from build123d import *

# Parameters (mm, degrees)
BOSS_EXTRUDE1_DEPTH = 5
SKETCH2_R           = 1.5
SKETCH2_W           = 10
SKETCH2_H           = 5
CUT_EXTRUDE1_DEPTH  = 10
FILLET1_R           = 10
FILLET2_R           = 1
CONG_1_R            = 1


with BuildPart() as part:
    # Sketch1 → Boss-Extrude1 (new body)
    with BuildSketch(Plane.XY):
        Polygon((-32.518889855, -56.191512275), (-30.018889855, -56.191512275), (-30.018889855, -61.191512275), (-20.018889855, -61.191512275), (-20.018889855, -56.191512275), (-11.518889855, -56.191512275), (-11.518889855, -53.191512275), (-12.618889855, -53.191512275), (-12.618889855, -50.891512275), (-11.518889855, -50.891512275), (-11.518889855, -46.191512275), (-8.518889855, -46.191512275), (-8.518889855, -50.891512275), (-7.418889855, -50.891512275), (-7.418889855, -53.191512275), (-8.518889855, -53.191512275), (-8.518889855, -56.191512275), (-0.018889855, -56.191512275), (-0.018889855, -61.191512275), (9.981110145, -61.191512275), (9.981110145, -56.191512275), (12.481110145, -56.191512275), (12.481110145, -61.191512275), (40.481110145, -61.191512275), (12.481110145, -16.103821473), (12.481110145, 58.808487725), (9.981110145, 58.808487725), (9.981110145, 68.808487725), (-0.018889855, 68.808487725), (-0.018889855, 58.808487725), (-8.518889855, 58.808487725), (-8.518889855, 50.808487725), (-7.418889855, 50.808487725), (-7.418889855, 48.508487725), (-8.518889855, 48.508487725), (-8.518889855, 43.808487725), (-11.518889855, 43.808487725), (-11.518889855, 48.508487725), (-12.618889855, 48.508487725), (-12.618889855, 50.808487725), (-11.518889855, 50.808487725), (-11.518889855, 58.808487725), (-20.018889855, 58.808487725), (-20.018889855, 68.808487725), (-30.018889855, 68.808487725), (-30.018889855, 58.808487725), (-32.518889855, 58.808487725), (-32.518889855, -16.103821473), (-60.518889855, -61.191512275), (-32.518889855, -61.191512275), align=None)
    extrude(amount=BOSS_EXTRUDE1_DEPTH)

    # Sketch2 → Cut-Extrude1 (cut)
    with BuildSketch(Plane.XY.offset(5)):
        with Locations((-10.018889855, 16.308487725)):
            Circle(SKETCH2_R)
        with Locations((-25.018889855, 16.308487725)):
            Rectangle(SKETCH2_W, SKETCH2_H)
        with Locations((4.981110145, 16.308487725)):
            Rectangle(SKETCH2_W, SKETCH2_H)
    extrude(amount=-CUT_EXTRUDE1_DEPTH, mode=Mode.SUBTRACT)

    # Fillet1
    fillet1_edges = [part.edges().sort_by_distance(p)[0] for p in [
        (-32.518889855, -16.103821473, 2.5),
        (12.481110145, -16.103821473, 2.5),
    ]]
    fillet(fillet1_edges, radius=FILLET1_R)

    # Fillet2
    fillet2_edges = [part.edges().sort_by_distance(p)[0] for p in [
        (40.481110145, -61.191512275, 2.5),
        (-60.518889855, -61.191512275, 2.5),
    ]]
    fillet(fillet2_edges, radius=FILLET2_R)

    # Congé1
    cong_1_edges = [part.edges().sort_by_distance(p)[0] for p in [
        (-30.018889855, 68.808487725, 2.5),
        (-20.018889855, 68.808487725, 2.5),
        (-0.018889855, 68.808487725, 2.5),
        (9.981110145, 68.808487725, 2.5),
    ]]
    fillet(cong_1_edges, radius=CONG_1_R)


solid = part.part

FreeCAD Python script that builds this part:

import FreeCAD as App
import Part
import Sketcher
Q = App.Units.Quantity


def edges_at(feature, points):
    """Names of the edges that pass closest to the given points."""
    edges = feature.Shape.Edges
    near = lambda p: min(range(len(edges)), key=lambda i: edges[i].distToShape(Part.Vertex(*p))[0])
    return sorted({f"Edge{near(p) + 1}" for p in points})

doc = App.newDocument("Part")
body = doc.addObject("PartDesign::Body", "Body")

sketch1 = body.newObject("Sketcher::SketchObject", "Sketch")
sketch1.AttachmentSupport = (doc.getObject("XY_Plane"), [""])
sketch1.MapMode = "FlatFace"
sketch1.addGeometry(Part.LineSegment(App.Vector(-32.51889, -56.191512, 0), App.Vector(-30.01889, -56.191512, 0)), False)
sketch1.addGeometry(Part.LineSegment(App.Vector(-30.01889, -56.191512, 0), App.Vector(-30.01889, -61.191512, 0)), False)
sketch1.addGeometry(Part.LineSegment(App.Vector(-30.01889, -61.191512, 0), App.Vector(-20.01889, -61.191512, 0)), False)
sketch1.addGeometry(Part.LineSegment(App.Vector(-20.01889, -61.191512, 0), App.Vector(-20.01889, -56.191512, 0)), False)
sketch1.addGeometry(Part.LineSegment(App.Vector(-20.01889, -56.191512, 0), App.Vector(-11.51889, -56.191512, 0)), False)
sketch1.addGeometry(Part.LineSegment(App.Vector(-11.51889, -56.191512, 0), App.Vector(-11.51889, -53.191512, 0)), False)
sketch1.addGeometry(Part.LineSegment(App.Vector(-11.51889, -53.191512, 0), App.Vector(-12.61889, -53.191512, 0)), False)
sketch1.addGeometry(Part.LineSegment(App.Vector(-12.61889, -53.191512, 0), App.Vector(-12.61889, -50.891512, 0)), False)
sketch1.addGeometry(Part.LineSegment(App.Vector(-12.61889, -50.891512, 0), App.Vector(-11.51889, -50.891512, 0)), False)
sketch1.addGeometry(Part.LineSegment(App.Vector(-11.51889, -50.891512, 0), App.Vector(-11.51889, -46.191512, 0)), False)
sketch1.addGeometry(Part.LineSegment(App.Vector(-11.51889, -46.191512, 0), App.Vector(-8.51889, -46.191512, 0)), False)
sketch1.addGeometry(Part.LineSegment(App.Vector(-8.51889, -46.191512, 0), App.Vector(-8.51889, -50.891512, 0)), False)
sketch1.addGeometry(Part.LineSegment(App.Vector(-8.51889, -50.891512, 0), App.Vector(-7.41889, -50.891512, 0)), False)
sketch1.addGeometry(Part.LineSegment(App.Vector(-7.41889, -50.891512, 0), App.Vector(-7.41889, -53.191512, 0)), False)
sketch1.addGeometry(Part.LineSegment(App.Vector(-7.41889, -53.191512, 0), App.Vector(-8.51889, -53.191512, 0)), False)
sketch1.addGeometry(Part.LineSegment(App.Vector(-8.51889, -53.191512, 0), App.Vector(-8.51889, -56.191512, 0)), False)
sketch1.addGeometry(Part.LineSegment(App.Vector(-8.51889, -56.191512, 0), App.Vector(-0.01889, -56.191512, 0)), False)
sketch1.addGeometry(Part.LineSegment(App.Vector(-0.01889, -56.191512, 0), App.Vector(-0.01889, -61.191512, 0)), False)
sketch1.addGeometry(Part.LineSegment(App.Vector(-0.01889, -61.191512, 0), App.Vector(9.98111, -61.191512, 0)), False)
sketch1.addGeometry(Part.LineSegment(App.Vector(9.98111, -61.191512, 0), App.Vector(9.98111, -56.191512, 0)), False)
sketch1.addGeometry(Part.LineSegment(App.Vector(9.98111, -56.191512, 0), App.Vector(12.48111, -56.191512, 0)), False)
sketch1.addGeometry(Part.LineSegment(App.Vector(12.48111, -56.191512, 0), App.Vector(12.48111, -61.191512, 0)), False)
sketch1.addGeometry(Part.LineSegment(App.Vector(12.48111, -61.191512, 0), App.Vector(40.48111, -61.191512, 0)), False)
sketch1.addGeometry(Part.LineSegment(App.Vector(40.48111, -61.191512, 0), App.Vector(12.48111, -16.103821, 0)), False)
sketch1.addGeometry(Part.LineSegment(App.Vector(12.48111, -16.103821, 0), App.Vector(12.48111, 58.808488, 0)), False)
sketch1.addGeometry(Part.LineSegment(App.Vector(12.48111, 58.808488, 0), App.Vector(9.98111, 58.808488, 0)), False)
sketch1.addGeometry(Part.LineSegment(App.Vector(9.98111, 58.808488, 0), App.Vector(9.98111, 68.808488, 0)), False)
sketch1.addGeometry(Part.LineSegment(App.Vector(9.98111, 68.808488, 0), App.Vector(-0.01889, 68.808488, 0)), False)
sketch1.addGeometry(Part.LineSegment(App.Vector(-0.01889, 68.808488, 0), App.Vector(-0.01889, 58.808488, 0)), False)
sketch1.addGeometry(Part.LineSegment(App.Vector(-0.01889, 58.808488, 0), App.Vector(-8.51889, 58.808488, 0)), False)
sketch1.addGeometry(Part.LineSegment(App.Vector(-8.51889, 58.808488, 0), App.Vector(-8.51889, 50.808488, 0)), False)
sketch1.addGeometry(Part.LineSegment(App.Vector(-8.51889, 50.808488, 0), App.Vector(-7.41889, 50.808488, 0)), False)
sketch1.addGeometry(Part.LineSegment(App.Vector(-7.41889, 50.808488, 0), App.Vector(-7.41889, 48.508488, 0)), False)
sketch1.addGeometry(Part.LineSegment(App.Vector(-7.41889, 48.508488, 0), App.Vector(-8.51889, 48.508488, 0)), False)
sketch1.addGeometry(Part.LineSegment(App.Vector(-8.51889, 48.508488, 0), App.Vector(-8.51889, 43.808488, 0)), False)
sketch1.addGeometry(Part.LineSegment(App.Vector(-8.51889, 43.808488, 0), App.Vector(-11.51889, 43.808488, 0)), False)
sketch1.addGeometry(Part.LineSegment(App.Vector(-11.51889, 43.808488, 0), App.Vector(-11.51889, 48.508488, 0)), False)
sketch1.addGeometry(Part.LineSegment(App.Vector(-11.51889, 48.508488, 0), App.Vector(-12.61889, 48.508488, 0)), False)
sketch1.addGeometry(Part.LineSegment(App.Vector(-12.61889, 48.508488, 0), App.Vector(-12.61889, 50.808488, 0)), False)
sketch1.addGeometry(Part.LineSegment(App.Vector(-12.61889, 50.808488, 0), App.Vector(-11.51889, 50.808488, 0)), False)
sketch1.addGeometry(Part.LineSegment(App.Vector(-11.51889, 50.808488, 0), App.Vector(-11.51889, 58.808488, 0)), False)
sketch1.addGeometry(Part.LineSegment(App.Vector(-11.51889, 58.808488, 0), App.Vector(-20.01889, 58.808488, 0)), False)
sketch1.addGeometry(Part.LineSegment(App.Vector(-20.01889, 58.808488, 0), App.Vector(-20.01889, 68.808488, 0)), False)
sketch1.addGeometry(Part.LineSegment(App.Vector(-20.01889, 68.808488, 0), App.Vector(-30.01889, 68.808488, 0)), False)
sketch1.addGeometry(Part.LineSegment(App.Vector(-30.01889, 68.808488, 0), App.Vector(-30.01889, 58.808488, 0)), False)
sketch1.addGeometry(Part.LineSegment(App.Vector(-30.01889, 58.808488, 0), App.Vector(-32.51889, 58.808488, 0)), False)
sketch1.addGeometry(Part.LineSegment(App.Vector(-32.51889, 58.808488, 0), App.Vector(-32.51889, -16.103821, 0)), False)
sketch1.addGeometry(Part.LineSegment(App.Vector(-32.51889, -16.103821, 0), App.Vector(-60.51889, -61.191512, 0)), False)
sketch1.addGeometry(Part.LineSegment(App.Vector(-60.51889, -61.191512, 0), App.Vector(-32.51889, -61.191512, 0)), False)
sketch1.addGeometry(Part.LineSegment(App.Vector(-32.51889, -61.191512, 0), App.Vector(-32.51889, -56.191512, 0)), False)
sketch1.addConstraint(Sketcher.Constraint("Coincident", 0, 2, 1, 1))
sketch1.addConstraint(Sketcher.Constraint("Coincident", 1, 2, 2, 1))
sketch1.addConstraint(Sketcher.Constraint("Coincident", 2, 2, 3, 1))
sketch1.addConstraint(Sketcher.Constraint("Coincident", 3, 2, 4, 1))
sketch1.addConstraint(Sketcher.Constraint("Coincident", 4, 2, 5, 1))
sketch1.addConstraint(Sketcher.Constraint("Coincident", 5, 2, 6, 1))
sketch1.addConstraint(Sketcher.Constraint("Coincident", 6, 2, 7, 1))
sketch1.addConstraint(Sketcher.Constraint("Coincident", 7, 2, 8, 1))
sketch1.addConstraint(Sketcher.Constraint("Coincident", 8, 2, 9, 1))
sketch1.addConstraint(Sketcher.Constraint("Coincident", 9, 2, 10, 1))
sketch1.addConstraint(Sketcher.Constraint("Coincident", 10, 2, 11, 1))
sketch1.addConstraint(Sketcher.Constraint("Coincident", 11, 2, 12, 1))
sketch1.addConstraint(Sketcher.Constraint("Coincident", 12, 2, 13, 1))
sketch1.addConstraint(Sketcher.Constraint("Coincident", 13, 2, 14, 1))
sketch1.addConstraint(Sketcher.Constraint("Coincident", 14, 2, 15, 1))
sketch1.addConstraint(Sketcher.Constraint("Coincident", 15, 2, 16, 1))
sketch1.addConstraint(Sketcher.Constraint("Coincident", 16, 2, 17, 1))
sketch1.addConstraint(Sketcher.Constraint("Coincident", 17, 2, 18, 1))
sketch1.addConstraint(Sketcher.Constraint("Coincident", 18, 2, 19, 1))
sketch1.addConstraint(Sketcher.Constraint("Coincident", 19, 2, 20, 1))
sketch1.addConstraint(Sketcher.Constraint("Coincident", 20, 2, 21, 1))
sketch1.addConstraint(Sketcher.Constraint("Coincident", 21, 2, 22, 1))
sketch1.addConstraint(Sketcher.Constraint("Coincident", 22, 2, 23, 1))
sketch1.addConstraint(Sketcher.Constraint("Coincident", 23, 2, 24, 1))
sketch1.addConstraint(Sketcher.Constraint("Coincident", 24, 2, 25, 1))
sketch1.addConstraint(Sketcher.Constraint("Coincident", 25, 2, 26, 1))
sketch1.addConstraint(Sketcher.Constraint("Coincident", 26, 2, 27, 1))
sketch1.addConstraint(Sketcher.Constraint("Coincident", 27, 2, 28, 1))
sketch1.addConstraint(Sketcher.Constraint("Coincident", 28, 2, 29, 1))
sketch1.addConstraint(Sketcher.Constraint("Coincident", 29, 2, 30, 1))
sketch1.addConstraint(Sketcher.Constraint("Coincident", 30, 2, 31, 1))
sketch1.addConstraint(Sketcher.Constraint("Coincident", 31, 2, 32, 1))
sketch1.addConstraint(Sketcher.Constraint("Coincident", 32, 2, 33, 1))
sketch1.addConstraint(Sketcher.Constraint("Coincident", 33, 2, 34, 1))
sketch1.addConstraint(Sketcher.Constraint("Coincident", 34, 2, 35, 1))
sketch1.addConstraint(Sketcher.Constraint("Coincident", 35, 2, 36, 1))
sketch1.addConstraint(Sketcher.Constraint("Coincident", 36, 2, 37, 1))
sketch1.addConstraint(Sketcher.Constraint("Coincident", 37, 2, 38, 1))
sketch1.addConstraint(Sketcher.Constraint("Coincident", 38, 2, 39, 1))
sketch1.addConstraint(Sketcher.Constraint("Coincident", 39, 2, 40, 1))
sketch1.addConstraint(Sketcher.Constraint("Coincident", 40, 2, 41, 1))
sketch1.addConstraint(Sketcher.Constraint("Coincident", 41, 2, 42, 1))
sketch1.addConstraint(Sketcher.Constraint("Coincident", 42, 2, 43, 1))
sketch1.addConstraint(Sketcher.Constraint("Coincident", 43, 2, 44, 1))
sketch1.addConstraint(Sketcher.Constraint("Coincident", 44, 2, 45, 1))
sketch1.addConstraint(Sketcher.Constraint("Coincident", 45, 2, 46, 1))
sketch1.addConstraint(Sketcher.Constraint("Coincident", 46, 2, 47, 1))
sketch1.addConstraint(Sketcher.Constraint("Coincident", 47, 2, 48, 1))
sketch1.addConstraint(Sketcher.Constraint("Coincident", 48, 2, 49, 1))
sketch1.addConstraint(Sketcher.Constraint("Coincident", 49, 2, 0, 1))
sketch1.addConstraint(Sketcher.Constraint("Horizontal", 0))
sketch1.addConstraint(Sketcher.Constraint("Vertical", 1))
sketch1.addConstraint(Sketcher.Constraint("Horizontal", 2))
sketch1.addConstraint(Sketcher.Constraint("Vertical", 3))
sketch1.addConstraint(Sketcher.Constraint("Horizontal", 4))
sketch1.addConstraint(Sketcher.Constraint("Vertical", 5))
sketch1.addConstraint(Sketcher.Constraint("Horizontal", 6))
sketch1.addConstraint(Sketcher.Constraint("Vertical", 7))
sketch1.addConstraint(Sketcher.Constraint("Horizontal", 8))
sketch1.addConstraint(Sketcher.Constraint("Vertical", 9))
sketch1.addConstraint(Sketcher.Constraint("Horizontal", 10))
sketch1.addConstraint(Sketcher.Constraint("Vertical", 11))
sketch1.addConstraint(Sketcher.Constraint("Horizontal", 12))
sketch1.addConstraint(Sketcher.Constraint("Vertical", 13))
sketch1.addConstraint(Sketcher.Constraint("Horizontal", 14))
sketch1.addConstraint(Sketcher.Constraint("Vertical", 15))
sketch1.addConstraint(Sketcher.Constraint("Horizontal", 16))
sketch1.addConstraint(Sketcher.Constraint("Vertical", 17))
sketch1.addConstraint(Sketcher.Constraint("Horizontal", 18))
sketch1.addConstraint(Sketcher.Constraint("Vertical", 19))
sketch1.addConstraint(Sketcher.Constraint("Horizontal", 20))
sketch1.addConstraint(Sketcher.Constraint("Vertical", 21))
sketch1.addConstraint(Sketcher.Constraint("Horizontal", 22))
sketch1.addConstraint(Sketcher.Constraint("Vertical", 24))
sketch1.addConstraint(Sketcher.Constraint("Horizontal", 25))
sketch1.addConstraint(Sketcher.Constraint("Vertical", 26))
sketch1.addConstraint(Sketcher.Constraint("Horizontal", 27))
sketch1.addConstraint(Sketcher.Constraint("Vertical", 28))
sketch1.addConstraint(Sketcher.Constraint("Horizontal", 29))
sketch1.addConstraint(Sketcher.Constraint("Vertical", 30))
sketch1.addConstraint(Sketcher.Constraint("Horizontal", 31))
sketch1.addConstraint(Sketcher.Constraint("Vertical", 32))
sketch1.addConstraint(Sketcher.Constraint("Horizontal", 33))
sketch1.addConstraint(Sketcher.Constraint("Vertical", 34))
sketch1.addConstraint(Sketcher.Constraint("Horizontal", 35))
sketch1.addConstraint(Sketcher.Constraint("Vertical", 36))
sketch1.addConstraint(Sketcher.Constraint("Horizontal", 37))
sketch1.addConstraint(Sketcher.Constraint("Vertical", 38))
sketch1.addConstraint(Sketcher.Constraint("Horizontal", 39))
sketch1.addConstraint(Sketcher.Constraint("Vertical", 40))
sketch1.addConstraint(Sketcher.Constraint("Horizontal", 41))
sketch1.addConstraint(Sketcher.Constraint("Vertical", 42))
sketch1.addConstraint(Sketcher.Constraint("Horizontal", 43))
sketch1.addConstraint(Sketcher.Constraint("Vertical", 44))
sketch1.addConstraint(Sketcher.Constraint("Horizontal", 45))
sketch1.addConstraint(Sketcher.Constraint("Vertical", 46))
sketch1.addConstraint(Sketcher.Constraint("Horizontal", 48))
sketch1.addConstraint(Sketcher.Constraint("Vertical", 49))
sketch1.addConstraint(Sketcher.Constraint("Horizontal", 0, 2, 3, 2))
sketch1.addConstraint(Sketcher.Constraint("Horizontal", 8, 2, 11, 2))
sketch1.addConstraint(Sketcher.Constraint("Horizontal", 6, 2, 13, 2))
sketch1.addConstraint(Sketcher.Constraint("Horizontal", 4, 2, 15, 2))
sketch1.addConstraint(Sketcher.Constraint("Horizontal", 2, 2, 17, 2))
sketch1.addConstraint(Sketcher.Constraint("Horizontal", 16, 2, 19, 2))
sketch1.addConstraint(Sketcher.Constraint("Horizontal", 18, 2, 21, 2))
sketch1.addConstraint(Sketcher.Constraint("Horizontal", 25, 2, 28, 2))
sketch1.addConstraint(Sketcher.Constraint("Horizontal", 33, 2, 36, 2))
sketch1.addConstraint(Sketcher.Constraint("Horizontal", 31, 2, 38, 2))
sketch1.addConstraint(Sketcher.Constraint("Horizontal", 29, 2, 40, 2))
sketch1.addConstraint(Sketcher.Constraint("Horizontal", 27, 2, 42, 2))
sketch1.addConstraint(Sketcher.Constraint("Horizontal", 41, 2, 44, 2))
sketch1.addConstraint(Sketcher.Constraint("Horizontal", 23, 2, 46, 2))
sketch1.addConstraint(Sketcher.Constraint("Horizontal", 22, 2, 47, 2))
sketch1.addConstraint(Sketcher.Constraint("Vertical", 5, 2, 8, 2))
sketch1.addConstraint(Sketcher.Constraint("Vertical", 11, 2, 14, 2))
sketch1.addConstraint(Sketcher.Constraint("Vertical", 21, 2, 23, 2))
sketch1.addConstraint(Sketcher.Constraint("Vertical", 19, 2, 25, 2))
sketch1.addConstraint(Sketcher.Constraint("Vertical", 17, 2, 27, 2))
sketch1.addConstraint(Sketcher.Constraint("Vertical", 15, 2, 29, 2))
sketch1.addConstraint(Sketcher.Constraint("Vertical", 13, 2, 31, 2))
sketch1.addConstraint(Sketcher.Constraint("Vertical", 30, 2, 33, 2))
sketch1.addConstraint(Sketcher.Constraint("Vertical", 9, 2, 35, 2))
sketch1.addConstraint(Sketcher.Constraint("Vertical", 7, 2, 37, 2))
sketch1.addConstraint(Sketcher.Constraint("Vertical", 36, 2, 39, 2))
sketch1.addConstraint(Sketcher.Constraint("Vertical", 3, 2, 41, 2))
sketch1.addConstraint(Sketcher.Constraint("Vertical", 1, 2, 43, 2))
sketch1.addConstraint(Sketcher.Constraint("Vertical", 46, 2, 48, 2))
sketch1.addConstraint(Sketcher.Constraint("Equal", 8, 12))
sketch1.addConstraint(Sketcher.Constraint("Equal", 4, 16))
sketch1.addConstraint(Sketcher.Constraint("Equal", 2, 18))
sketch1.addConstraint(Sketcher.Constraint("Equal", 0, 20))
sketch1.addConstraint(Sketcher.Constraint("Equal", 22, 48))
sketch1.addConstraint(Sketcher.Constraint("Equal", 35, 5))
sketch1.addConstraint(Sketcher.Constraint("Equal", 43, 26))
sketch1.addConstraint(Sketcher.Constraint("Equal", 13, 32))
sketch1.addConstraint(Sketcher.Constraint("Equal", 11, 34))
sketch1.addConstraint(Sketcher.Constraint("DistanceX", 2, 1, 2, 2, Q("10 mm")))
sketch1.addConstraint(Sketcher.Constraint("DistanceX", 10, 1, 10, 2, Q("3 mm")))
sketch1.addConstraint(Sketcher.Constraint("DistanceX", 22, 1, 22, 2, Q("28 mm")))
sketch1.addConstraint(Sketcher.Constraint("DistanceY", 1, 2, 1, 1, Q("5 mm")))
sketch1.addConstraint(Sketcher.Constraint("DistanceY", 30, 2, 30, 1, Q("8 mm")))
sketch1.addConstraint(Sketcher.Constraint("DistanceX", 0, 1, 0, 2, Q("2.5 mm")))
sketch1.addConstraint(Sketcher.Constraint("DistanceX", 4, 1, 4, 2, Q("8.5 mm")))
sketch1.addConstraint(Sketcher.Constraint("DistanceX", 6, 2, 6, 1, Q("1.1 mm")))
sketch1.addConstraint(Sketcher.Constraint("DistanceY", 7, 1, 7, 2, Q("2.3 mm")))
sketch1.addConstraint(Sketcher.Constraint("DistanceY", 9, 1, 9, 2, Q("4.7 mm")))
sketch1.addConstraint(Sketcher.Constraint("DistanceY", 10, 2, 24, 2, Q("105 mm")))
sketch1.addConstraint(Sketcher.Constraint("DistanceY", 24, 1, 24, 2, Q("74.912309 mm")))
sketch1.addConstraint(Sketcher.Constraint("DistanceX", 0, 2, -1, 1, Q("30.01889 mm")))
sketch1.addConstraint(Sketcher.Constraint("DistanceY", 23, 2, -1, 1, Q("16.103821 mm")))
pad1 = body.newObject("PartDesign::Pad", "Pad")
pad1.Profile = sketch1
pad1.Length = 5

sketch2 = body.newObject("Sketcher::SketchObject", "Sketch001")
sketch2.AttachmentSupport = (doc.getObject("XY_Plane"), [""])
sketch2.MapMode = "FlatFace"
sketch2.AttachmentOffset = App.Placement(App.Vector(0, 0, 5), App.Rotation())
sketch2.addGeometry(Part.Circle(App.Vector(-10.01889, 16.308488, 0), App.Vector(0, 0, 1), 1.5), False)
sketch2.addGeometry(Part.LineSegment(App.Vector(-30.01889, 18.808488, 0), App.Vector(-30.01889, 13.808488, 0)), False)
sketch2.addGeometry(Part.LineSegment(App.Vector(-30.01889, 13.808488, 0), App.Vector(-20.01889, 13.808488, 0)), False)
sketch2.addGeometry(Part.LineSegment(App.Vector(-20.01889, 13.808488, 0), App.Vector(-20.01889, 18.808488, 0)), False)
sketch2.addGeometry(Part.LineSegment(App.Vector(-20.01889, 18.808488, 0), App.Vector(-30.01889, 18.808488, 0)), False)
sketch2.addGeometry(Part.LineSegment(App.Vector(-0.01889, 18.808488, 0), App.Vector(-0.01889, 13.808488, 0)), False)
sketch2.addGeometry(Part.LineSegment(App.Vector(-0.01889, 13.808488, 0), App.Vector(9.98111, 13.808488, 0)), False)
sketch2.addGeometry(Part.LineSegment(App.Vector(9.98111, 13.808488, 0), App.Vector(9.98111, 18.808488, 0)), False)
sketch2.addGeometry(Part.LineSegment(App.Vector(9.98111, 18.808488, 0), App.Vector(-0.01889, 18.808488, 0)), False)
sketch2.addConstraint(Sketcher.Constraint("Coincident", 1, 2, 2, 1))
sketch2.addConstraint(Sketcher.Constraint("Coincident", 2, 2, 3, 1))
sketch2.addConstraint(Sketcher.Constraint("Coincident", 3, 2, 4, 1))
sketch2.addConstraint(Sketcher.Constraint("Coincident", 4, 2, 1, 1))
sketch2.addConstraint(Sketcher.Constraint("Coincident", 5, 2, 6, 1))
sketch2.addConstraint(Sketcher.Constraint("Coincident", 6, 2, 7, 1))
sketch2.addConstraint(Sketcher.Constraint("Coincident", 7, 2, 8, 1))
sketch2.addConstraint(Sketcher.Constraint("Coincident", 8, 2, 5, 1))
sketch2.addConstraint(Sketcher.Constraint("Vertical", 1))
sketch2.addConstraint(Sketcher.Constraint("Horizontal", 2))
sketch2.addConstraint(Sketcher.Constraint("Vertical", 3))
sketch2.addConstraint(Sketcher.Constraint("Horizontal", 4))
sketch2.addConstraint(Sketcher.Constraint("Vertical", 5))
sketch2.addConstraint(Sketcher.Constraint("Horizontal", 6))
sketch2.addConstraint(Sketcher.Constraint("Vertical", 7))
sketch2.addConstraint(Sketcher.Constraint("Horizontal", 8))
sketch2.addConstraint(Sketcher.Constraint("Horizontal", 2, 2, 5, 2))
sketch2.addConstraint(Sketcher.Constraint("Horizontal", 4, 2, 7, 2))
sketch2.addConstraint(Sketcher.Constraint("Equal", 4, 6))
sketch2.addConstraint(Sketcher.Constraint("Diameter", 0, Q("3 mm")))
sketch2.addConstraint(Sketcher.Constraint("DistanceX", 2, 1, 2, 2, Q("10 mm")))
sketch2.addConstraint(Sketcher.Constraint("DistanceY", 1, 2, 1, 1, Q("5 mm")))
sketch2.addConstraint(Sketcher.Constraint("DistanceX", 1, 2, 0, 3, Q("20 mm")))
sketch2.addConstraint(Sketcher.Constraint("DistanceX", 0, 3, 5, 2, Q("10 mm")))
sketch2.addConstraint(Sketcher.Constraint("DistanceY", 1, 2, 0, 3, Q("2.5 mm")))
sketch2.addConstraint(Sketcher.Constraint("DistanceX", 0, 3, -1, 1, Q("10.01889 mm")))
sketch2.addConstraint(Sketcher.Constraint("DistanceY", -1, 1, 0, 3, Q("16.308488 mm")))
pocket1 = body.newObject("PartDesign::Pocket", "Pocket")
pocket1.Profile = sketch2
pocket1.Length = 10
doc.recompute()

fillet = body.newObject("PartDesign::Fillet", "Fillet")
fillet.Base = (pocket1, edges_at(pocket1, [(-32.519, -16.104, 2.5), (12.481, -16.104, 2.5)]))
fillet.Radius = 10
doc.recompute()

fillet2 = body.newObject("PartDesign::Fillet", "Fillet001")
fillet2.Base = (fillet, edges_at(fillet, [(40.481, -61.192, 2.5), (-60.519, -61.192, 2.5)]))
fillet2.Radius = 1
doc.recompute()

fillet3 = body.newObject("PartDesign::Fillet", "Fillet002")
fillet3.Base = (fillet2, edges_at(fillet2, [
    (-30.019, 68.808, 2.5),
    (-20.019, 68.808, 2.5),
    (-0.019, 68.808, 2.5),
    (9.981, 68.808, 2.5),
]))
fillet3.Radius = 1

doc.recompute()
